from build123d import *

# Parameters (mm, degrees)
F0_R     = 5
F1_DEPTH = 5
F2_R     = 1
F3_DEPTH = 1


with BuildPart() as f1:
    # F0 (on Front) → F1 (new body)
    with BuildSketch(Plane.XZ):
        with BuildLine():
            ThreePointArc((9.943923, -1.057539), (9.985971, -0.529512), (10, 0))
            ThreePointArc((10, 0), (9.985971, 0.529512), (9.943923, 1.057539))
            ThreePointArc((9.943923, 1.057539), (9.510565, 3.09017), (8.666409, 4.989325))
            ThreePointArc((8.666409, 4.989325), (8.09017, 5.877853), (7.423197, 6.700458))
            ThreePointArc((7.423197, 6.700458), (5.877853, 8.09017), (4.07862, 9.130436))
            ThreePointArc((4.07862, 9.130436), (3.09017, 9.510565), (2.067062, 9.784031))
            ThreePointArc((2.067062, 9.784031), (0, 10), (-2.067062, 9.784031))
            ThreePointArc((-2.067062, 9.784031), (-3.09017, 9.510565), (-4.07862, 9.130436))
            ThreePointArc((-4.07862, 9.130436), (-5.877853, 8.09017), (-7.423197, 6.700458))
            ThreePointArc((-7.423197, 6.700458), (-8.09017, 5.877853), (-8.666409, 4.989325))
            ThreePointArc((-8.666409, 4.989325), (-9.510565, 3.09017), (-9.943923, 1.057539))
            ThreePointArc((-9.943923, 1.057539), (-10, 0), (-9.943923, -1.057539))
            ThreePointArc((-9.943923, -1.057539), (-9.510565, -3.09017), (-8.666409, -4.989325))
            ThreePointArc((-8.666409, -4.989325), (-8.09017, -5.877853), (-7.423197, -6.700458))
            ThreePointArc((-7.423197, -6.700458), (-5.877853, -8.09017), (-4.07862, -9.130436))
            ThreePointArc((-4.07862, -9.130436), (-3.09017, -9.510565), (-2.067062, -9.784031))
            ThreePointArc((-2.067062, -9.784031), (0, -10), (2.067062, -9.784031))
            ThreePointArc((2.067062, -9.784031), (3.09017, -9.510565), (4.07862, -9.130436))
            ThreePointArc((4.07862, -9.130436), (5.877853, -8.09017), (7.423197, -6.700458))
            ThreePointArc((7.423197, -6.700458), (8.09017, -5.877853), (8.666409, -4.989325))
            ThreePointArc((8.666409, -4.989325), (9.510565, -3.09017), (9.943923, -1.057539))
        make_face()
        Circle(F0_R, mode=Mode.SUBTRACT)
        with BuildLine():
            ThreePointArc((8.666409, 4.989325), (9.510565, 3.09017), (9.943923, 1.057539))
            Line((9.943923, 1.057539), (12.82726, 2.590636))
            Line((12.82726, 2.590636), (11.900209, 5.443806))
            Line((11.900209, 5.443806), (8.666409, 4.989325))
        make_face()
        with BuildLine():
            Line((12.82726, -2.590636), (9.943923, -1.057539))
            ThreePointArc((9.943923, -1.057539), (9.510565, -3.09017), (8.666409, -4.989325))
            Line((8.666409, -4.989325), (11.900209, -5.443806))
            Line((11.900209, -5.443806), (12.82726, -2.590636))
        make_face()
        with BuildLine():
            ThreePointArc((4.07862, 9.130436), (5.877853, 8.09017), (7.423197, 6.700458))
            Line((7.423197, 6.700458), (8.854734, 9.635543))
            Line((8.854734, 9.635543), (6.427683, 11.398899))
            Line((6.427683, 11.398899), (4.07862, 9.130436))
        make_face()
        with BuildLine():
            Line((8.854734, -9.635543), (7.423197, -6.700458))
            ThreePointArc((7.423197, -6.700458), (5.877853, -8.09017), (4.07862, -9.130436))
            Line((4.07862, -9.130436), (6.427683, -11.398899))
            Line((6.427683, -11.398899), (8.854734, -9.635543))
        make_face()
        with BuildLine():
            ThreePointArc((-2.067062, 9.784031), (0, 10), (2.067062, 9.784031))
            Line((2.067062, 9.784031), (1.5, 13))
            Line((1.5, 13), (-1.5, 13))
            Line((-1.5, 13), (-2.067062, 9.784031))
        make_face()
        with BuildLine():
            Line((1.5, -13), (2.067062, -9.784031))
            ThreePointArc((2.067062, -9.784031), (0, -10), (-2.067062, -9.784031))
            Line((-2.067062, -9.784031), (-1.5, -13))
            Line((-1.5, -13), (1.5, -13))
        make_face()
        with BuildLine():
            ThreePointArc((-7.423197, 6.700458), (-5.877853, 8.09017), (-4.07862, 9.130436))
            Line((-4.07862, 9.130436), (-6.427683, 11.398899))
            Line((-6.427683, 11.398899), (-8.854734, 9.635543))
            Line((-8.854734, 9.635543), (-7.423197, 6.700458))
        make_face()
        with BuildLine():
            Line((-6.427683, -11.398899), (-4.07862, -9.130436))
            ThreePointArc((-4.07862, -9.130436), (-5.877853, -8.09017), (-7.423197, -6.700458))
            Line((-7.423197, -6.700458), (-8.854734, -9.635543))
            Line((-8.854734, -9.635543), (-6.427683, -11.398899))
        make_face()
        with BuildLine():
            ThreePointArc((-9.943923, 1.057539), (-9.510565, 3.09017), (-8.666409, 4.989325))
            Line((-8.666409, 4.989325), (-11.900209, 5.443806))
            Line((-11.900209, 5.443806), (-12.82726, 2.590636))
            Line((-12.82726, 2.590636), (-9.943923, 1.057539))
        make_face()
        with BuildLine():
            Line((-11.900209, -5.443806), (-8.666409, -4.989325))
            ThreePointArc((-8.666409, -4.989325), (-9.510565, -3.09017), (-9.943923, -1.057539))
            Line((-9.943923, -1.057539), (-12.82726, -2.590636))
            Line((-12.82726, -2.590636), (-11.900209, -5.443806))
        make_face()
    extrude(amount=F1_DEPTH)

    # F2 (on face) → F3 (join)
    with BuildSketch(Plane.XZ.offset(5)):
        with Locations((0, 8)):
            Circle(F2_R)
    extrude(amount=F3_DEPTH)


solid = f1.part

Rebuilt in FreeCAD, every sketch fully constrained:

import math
import FreeCAD as App
import Part
import Sketcher
Q = App.Units.Quantity

doc = App.newDocument("Part")
body = doc.addObject("PartDesign::Body", "Body")

# Sketch on XZ plane
sketch1 = body.newObject("Sketcher::SketchObject", "Sketch")
sketch1.AttachmentSupport = (doc.getObject("XZ_Plane"), [""])
sketch1.MapMode = "FlatFace"
sketch1.addGeometry(Part.ArcOfCircle(Part.Circle(App.Vector(0.00011, -0.000003, 0), App.Vector(0, 0, 1), 9.99989), math.radians(-6.070655), math.radians(0.000015)), False)
sketch1.addGeometry(Part.ArcOfCircle(Part.Circle(App.Vector(0.00011, 0.000003, 0), App.Vector(0, 0, 1), 9.99989), math.radians(-0.000015), math.radians(6.070655)), False)
sketch1.addGeometry(Part.LineSegment(App.Vector(9.943923, 1.057539, 0), App.Vector(12.82726, 2.590636, 0)), False)
sketch1.addGeometry(Part.LineSegment(App.Vector(12.82726, 2.590636, 0), App.Vector(11.900209, 5.443806, 0)), False)
sketch1.addGeometry(Part.LineSegment(App.Vector(11.900209, 5.443806, 0), App.Vector(8.666409, 4.989325, 0)), False)
sketch1.addGeometry(Part.ArcOfCircle(Part.Circle(App.Vector(0.000049, 0.000031, 0), App.Vector(0, 0, 1), 9.999942), math.radians(29.929387), math.radians(42.070661)), False)
sketch1.addGeometry(Part.LineSegment(App.Vector(7.423197, 6.700458, 0), App.Vector(8.854734, 9.635543, 0)), False)
sketch1.addGeometry(Part.LineSegment(App.Vector(8.854734, 9.635543, 0), App.Vector(6.427683, 11.398899, 0)), False)
sketch1.addGeometry(Part.LineSegment(App.Vector(6.427683, 11.398899, 0), App.Vector(4.07862, 9.130436, 0)), False)
sketch1.addGeometry(Part.ArcOfCircle(Part.Circle(App.Vector(-0.000023, -0.000068, 0), App.Vector(0, 0, 1), 10.000072), math.radians(65.929437), math.radians(78.070553)), False)
sketch1.addGeometry(Part.LineSegment(App.Vector(2.067062, 9.784031, 0), App.Vector(1.5, 13, 0)), False)
sketch1.addGeometry(Part.LineSegment(App.Vector(1.5, 13, 0), App.Vector(-1.5, 13, 0)), False)
sketch1.addGeometry(Part.LineSegment(App.Vector(-1.5, 13, 0), App.Vector(-2.067062, 9.784031, 0)), False)
sketch1.addGeometry(Part.ArcOfCircle(Part.Circle(App.Vector(0.000023, -0.000068, 0), App.Vector(0, 0, 1), 10.000072), math.radians(101.929447), math.radians(114.070563)), False)
sketch1.addGeometry(Part.LineSegment(App.Vector(-4.07862, 9.130436, 0), App.Vector(-6.427683, 11.398899, 0)), False)
sketch1.addGeometry(Part.LineSegment(App.Vector(-6.427683, 11.398899, 0), App.Vector(-8.854734, 9.635543, 0)), False)
sketch1.addGeometry(Part.LineSegment(App.Vector(-8.854734, 9.635543, 0), App.Vector(-7.423197, 6.700458, 0)), False)
sketch1.addGeometry(Part.ArcOfCircle(Part.Circle(App.Vector(-0.000049, 0.000031, 0), App.Vector(0, 0, 1), 9.999942), math.radians(137.929339), math.radians(150.070613)), False)
sketch1.addGeometry(Part.LineSegment(App.Vector(-8.666409, 4.989325, 0), App.Vector(-11.900209, 5.443806, 0)), False)
sketch1.addGeometry(Part.LineSegment(App.Vector(-11.900209, 5.443806, 0), App.Vector(-12.82726, 2.590636, 0)), False)
sketch1.addGeometry(Part.LineSegment(App.Vector(-12.82726, 2.590636, 0), App.Vector(-9.943923, 1.057539, 0)), False)
sketch1.addGeometry(Part.ArcOfCircle(Part.Circle(App.Vector(-0.000059, 0, 0), App.Vector(0, 0, 1), 9.999941), math.radians(173.92936), math.radians(186.07064)), False)
sketch1.addGeometry(Part.LineSegment(App.Vector(-9.943923, -1.057539, 0), App.Vector(-12.82726, -2.590636, 0)), False)
sketch1.addGeometry(Part.LineSegment(App.Vector(-12.82726, -2.590636, 0), App.Vector(-11.900209, -5.443806, 0)), False)
sketch1.addGeometry(Part.LineSegment(App.Vector(-11.900209, -5.443806, 0), App.Vector(-8.666409, -4.989325, 0)), False)
sketch1.addGeometry(Part.ArcOfCircle(Part.Circle(App.Vector(-0.000049, -0.000031, 0), App.Vector(0, 0, 1), 9.999942), math.radians(-150.070613), math.radians(-137.929339)), False)
sketch1.addGeometry(Part.LineSegment(App.Vector(-7.423197, -6.700458, 0), App.Vector(-8.854734, -9.635543, 0)), False)
sketch1.addGeometry(Part.LineSegment(App.Vector(-8.854734, -9.635543, 0), App.Vector(-6.427683, -11.398899, 0)), False)
sketch1.addGeometry(Part.LineSegment(App.Vector(-6.427683, -11.398899, 0), App.Vector(-4.07862, -9.130436, 0)), False)
sketch1.addGeometry(Part.ArcOfCircle(Part.Circle(App.Vector(0.000023, 0.000068, 0), App.Vector(0, 0, 1), 10.000072), math.radians(-114.070563), math.radians(-101.929447)), False)
sketch1.addGeometry(Part.LineSegment(App.Vector(-2.067062, -9.784031, 0), App.Vector(-1.5, -13, 0)), False)
sketch1.addGeometry(Part.LineSegment(App.Vector(-1.5, -13, 0), App.Vector(1.5, -13, 0)), False)
sketch1.addGeometry(Part.LineSegment(App.Vector(1.5, -13, 0), App.Vector(2.067062, -9.784031, 0)), False)
sketch1.addGeometry(Part.ArcOfCircle(Part.Circle(App.Vector(-0.000023, 0.000068, 0), App.Vector(0, 0, 1), 10.000072), math.radians(-78.070553), math.radians(-65.929437)), False)
sketch1.addGeometry(Part.LineSegment(App.Vector(4.07862, -9.130436, 0), App.Vector(6.427683, -11.398899, 0)), False)
sketch1.addGeometry(Part.LineSegment(App.Vector(6.427683, -11.398899, 0), App.Vector(8.854734, -9.635543, 0)), False)
sketch1.addGeometry(Part.LineSegment(App.Vector(8.854734, -9.635543, 0), App.Vector(7.423197, -6.700458, 0)), False)
sketch1.addGeometry(Part.ArcOfCircle(Part.Circle(App.Vector(0.000049, -0.000031, 0), App.Vector(0, 0, 1), 9.999942), math.radians(-42.070661), math.radians(-29.929387)), False)
sketch1.addGeometry(Part.LineSegment(App.Vector(8.666409, -4.989325, 0), App.Vector(11.900209, -5.443806, 0)), False)
sketch1.addGeometry(Part.LineSegment(App.Vector(11.900209, -5.443806, 0), App.Vector(12.82726, -2.590636, 0)), False)
sketch1.addGeometry(Part.LineSegment(App.Vector(12.82726, -2.590636, 0), App.Vector(9.943923, -1.057539, 0)), False)
sketch1.addGeometry(Part.Circle(App.Vector(0, 0, 0), App.Vector(0, 0, 1), 5), False)
sketch1.addConstraint(Sketcher.Constraint("Tangent", 0, 2, 1, 1))
sketch1.addConstraint(Sketcher.Constraint("Coincident", 1, 2, 2, 1))
sketch1.addConstraint(Sketcher.Constraint("Coincident", 2, 2, 3, 1))
sketch1.addConstraint(Sketcher.Constraint("Coincident", 3, 2, 4, 1))
sketch1.addConstraint(Sketcher.Constraint("Coincident", 4, 2, 5, 1))
sketch1.addConstraint(Sketcher.Constraint("Coincident", 5, 2, 6, 1))
sketch1.addConstraint(Sketcher.Constraint("Coincident", 6, 2, 7, 1))
sketch1.addConstraint(Sketcher.Constraint("Coincident", 7, 2, 8, 1))
sketch1.addConstraint(Sketcher.Constraint("Coincident", 8, 2, 9, 1))
sketch1.addConstraint(Sketcher.Constraint("Coincident", 9, 2, 10, 1))
sketch1.addConstraint(Sketcher.Constraint("Coincident", 10, 2, 11, 1))
sketch1.addConstraint(Sketcher.Constraint("Coincident", 11, 2, 12, 1))
sketch1.addConstraint(Sketcher.Constraint("Coincident", 12, 2, 13, 1))
sketch1.addConstraint(Sketcher.Constraint("Coincident", 13, 2, 14, 1))
sketch1.addConstraint(Sketcher.Constraint("Coincident", 14, 2, 15, 1))
sketch1.addConstraint(Sketcher.Constraint("Coincident", 15, 2, 16, 1))
sketch1.addConstraint(Sketcher.Constraint("Coincident", 16, 2, 17, 1))
sketch1.addConstraint(Sketcher.Constraint("Coincident", 17, 2, 18, 1))
sketch1.addConstraint(Sketcher.Constraint("Coincident", 18, 2, 19, 1))
sketch1.addConstraint(Sketcher.Constraint("Coincident", 19, 2, 20, 1))
sketch1.addConstraint(Sketcher.Constraint("Coincident", 20, 2, 21, 1))
sketch1.addConstraint(Sketcher.Constraint("Coincident", 21, 2, 22, 1))
sketch1.addConstraint(Sketcher.Constraint("Coincident", 22, 2, 23, 1))
sketch1.addConstraint(Sketcher.Constraint("Coincident", 23, 2, 24, 1))
sketch1.addConstraint(Sketcher.Constraint("Coincident", 24, 2, 25, 1))
sketch1.addConstraint(Sketcher.Constraint("Coincident", 25, 2, 26, 1))
sketch1.addConstraint(Sketcher.Constraint("Coincident", 26, 2, 27, 1))
sketch1.addConstraint(Sketcher.Constraint("Coincident", 27, 2, 28, 1))
sketch1.addConstraint(Sketcher.Constraint("Coincident", 28, 2, 29, 1))
sketch1.addConstraint(Sketcher.Constraint("Coincident", 29, 2, 30, 1))
sketch1.addConstraint(Sketcher.Constraint("Coincident", 30, 2, 31, 1))
sketch1.addConstraint(Sketcher.Constraint("Coincident", 31, 2, 32, 1))
sketch1.addConstraint(Sketcher.Constraint("Coincident", 32, 2, 33, 1))
sketch1.addConstraint(Sketcher.Constraint("Coincident", 33, 2, 34, 1))
sketch1.addConstraint(Sketcher.Constraint("Coincident", 34, 2, 35, 1))
sketch1.addConstraint(Sketcher.Constraint("Coincident", 35, 2, 36, 1))
sketch1.addConstraint(Sketcher.Constraint("Coincident", 36, 2, 37, 1))
sketch1.addConstraint(Sketcher.Constraint("Coincident", 37, 2, 38, 1))
sketch1.addConstraint(Sketcher.Constraint("Coincident", 38, 2, 39, 1))
sketch1.addConstraint(Sketcher.Constraint("Coincident", 39, 2, 40, 1))
sketch1.addConstraint(Sketcher.Constraint("Coincident", 40, 2, 0, 1))
sketch1.addConstraint(Sketcher.Constraint("Horizontal", 11))
sketch1.addConstraint(Sketcher.Constraint("Horizontal", 31))
sketch1.addConstraint(Sketcher.Constraint("Coincident", 41, 3, -1, 1))
sketch1.addConstraint(Sketcher.Constraint("Equal", 0, 1))
sketch1.addConstraint(Sketcher.Constraint("Equal", 9, 13))
sketch1.addConstraint(Sketcher.Constraint("Equal", 5, 17))
sketch1.addConstraint(Sketcher.Constraint("Equal", 17, 21))
sketch1.addConstraint(Sketcher.Constraint("Equal", 21, 25))
sketch1.addConstraint(Sketcher.Constraint("Equal", 13, 29))
sketch1.addConstraint(Sketcher.Constraint("Equal", 29, 33))
sketch1.addConstraint(Sketcher.Constraint("Equal", 25, 37))
sketch1.addConstraint(Sketcher.Constraint("Symmetric", 5, 3, 25, 3, -1, 1))
sketch1.addConstraint(Sketcher.Constraint("Symmetric", 9, 3, 29, 3, -1, 1))
sketch1.addConstraint(Sketcher.Constraint("Symmetric", 13, 3, 33, 3, -1, 1))
sketch1.addConstraint(Sketcher.Constraint("Symmetric", 17, 3, 37, 3, -1, 1))
sketch1.addConstraint(Sketcher.Constraint("Symmetric", 1, 2, 21, 2, -1, 1))
sketch1.addConstraint(Sketcher.Constraint("Symmetric", 2, 2, 22, 2, -1, 1))
sketch1.addConstraint(Sketcher.Constraint("Symmetric", 3, 2, 23, 2, -1, 1))
sketch1.addConstraint(Sketcher.Constraint("Symmetric", 6, 2, 26, 2, -1, 1))
sketch1.addConstraint(Sketcher.Constraint("Symmetric", 7, 2, 27, 2, -1, 1))
sketch1.addConstraint(Sketcher.Constraint("Symmetric", 10, 2, 30, 2, -1, 1))
sketch1.addConstraint(Sketcher.Constraint("Symmetric", 14, 2, 34, 2, -1, 1))
sketch1.addConstraint(Sketcher.Constraint("Symmetric", 15, 2, 35, 2, -1, 1))
sketch1.addConstraint(Sketcher.Constraint("Symmetric", 18, 2, 38, 2, -1, 1))
sketch1.addConstraint(Sketcher.Constraint("Symmetric", 19, 2, 39, 2, -1, 1))
sketch1.addConstraint(Sketcher.Constraint("Symmetric", 20, 2, 40, 2, -1, 1))
sketch1.addConstraint(Sketcher.Constraint("Symmetric", 9, 3, 13, 3, -2))
sketch1.addConstraint(Sketcher.Constraint("Symmetric", 5, 3, 17, 3, -2))
sketch1.addConstraint(Sketcher.Constraint("Symmetric", 7, 2, 14, 2, -2))
sketch1.addConstraint(Sketcher.Constraint("Symmetric", 6, 2, 15, 2, -2))
sketch1.addConstraint(Sketcher.Constraint("Symmetric", 3, 2, 18, 2, -2))
sketch1.addConstraint(Sketcher.Constraint("Symmetric", 2, 2, 19, 2, -2))
sketch1.addConstraint(Sketcher.Constraint("Symmetric", 1, 2, 20, 2, -2))
sketch1.addConstraint(Sketcher.Constraint("PointOnObject", 0, 2, -1))
sketch1.addConstraint(Sketcher.Constraint("Parallel", 4, 24))
sketch1.addConstraint(Sketcher.Constraint("Parallel", 6, 26))
sketch1.addConstraint(Sketcher.Constraint("Parallel", 8, 28))
sketch1.addConstraint(Sketcher.Constraint("Parallel", 10, 30))
sketch1.addConstraint(Sketcher.Constraint("Parallel", 12, 32))
sketch1.addConstraint(Sketcher.Constraint("Parallel", 14, 34))
sketch1.addConstraint(Sketcher.Constraint("Parallel", 16, 36))
sketch1.addConstraint(Sketcher.Constraint("Parallel", 18, 38))
sketch1.addConstraint(Sketcher.Constraint("Horizontal", 9, 2, 12, 2))
sketch1.addConstraint(Sketcher.Constraint("Horizontal", 8, 2, 13, 2))
sketch1.addConstraint(Sketcher.Constraint("Horizontal", 5, 2, 16, 2))
sketch1.addConstraint(Sketcher.Constraint("Horizontal", 4, 2, 17, 2))
sketch1.addConstraint(Sketcher.Constraint("Horizontal", 29, 2, 32, 2))
sketch1.addConstraint(Sketcher.Constraint("Vertical", 11, 2, 30, 2))
sketch1.addConstraint(Sketcher.Constraint("Equal", 2, 4))
sketch1.addConstraint(Sketcher.Constraint("Equal", 4, 6))
sketch1.addConstraint(Sketcher.Constraint("Equal", 3, 7))
sketch1.addConstraint(Sketcher.Constraint("Equal", 6, 8))
sketch1.addConstraint(Sketcher.Constraint("Equal", 8, 10))
sketch1.addConstraint(Sketcher.Constraint("Diameter", 41, 10.0))
sketch1.addConstraint(Sketcher.Constraint("DistanceX", 11, 2, 11, 1, 3.0))
sketch1.addConstraint(Sketcher.Constraint("Angle", 2, Q("27.999993 deg")))
sketch1.addConstraint(Sketcher.Constraint("Angle", 3, Q("107.999998 deg")))
sketch1.addConstraint(Sketcher.Constraint("Angle", 4, Q("-171.999999 deg")))
sketch1.addConstraint(Sketcher.Constraint("Angle", 6, Q("63.999994 deg")))
sketch1.addConstraint(Sketcher.Constraint("Angle", 7, Q("143.999996 deg")))
sketch1.addConstraint(Sketcher.Constraint("Angle", 8, Q("-136.00001 deg")))
sketch1.addConstraint(Sketcher.Constraint("Angle", 10, Q("99.999998 deg")))
sketch1.addConstraint(Sketcher.Constraint("Distance", 3, 3.0))
sketch1.addConstraint(Sketcher.Constraint("DistanceX", -1, 1, 0, 2, 10.0))
sketch1.addConstraint(Sketcher.Constraint("DistanceY", -1, 1, 10, 2, 13.0))
sketch1.addConstraint(Sketcher.Constraint("Radius", 0, 9.99989))
sketch1.addConstraint(Sketcher.Constraint("Radius", 9, 10.000072))
sketch1.addConstraint(Sketcher.Constraint("Radius", 21, 9.999941))
sketch1.addConstraint(Sketcher.Constraint("DistanceY", -1, 1, 7, 2, 11.398899))
sketch1.addConstraint(Sketcher.Constraint("DistanceX", 1, 3, 3, 2, 11.900099))
sketch1.addConstraint(Sketcher.Constraint("DistanceX", 4, 2, 3, 2, 3.2338))
sketch1.addConstraint(Sketcher.Constraint("DistanceX", -1, 1, 8, 2, 4.07862))
pad1 = body.newObject("PartDesign::Pad", "Pad")
pad1.Profile = sketch1
pad1.Length = 5

# Sketch on XZ plane
sketch2 = body.newObject("Sketcher::SketchObject", "Sketch001")
sketch2.AttachmentSupport = (doc.getObject("XZ_Plane"), [""])
sketch2.MapMode = "FlatFace"
sketch2.AttachmentOffset = App.Placement(App.Vector(0, 0, 5), App.Rotation())
sketch2.addGeometry(Part.Circle(App.Vector(0, 8, 0), App.Vector(0, 0, 1), 1), False)
sketch2.addConstraint(Sketcher.Constraint("PointOnObject", 0, 3, -2))
sketch2.addConstraint(Sketcher.Constraint("Diameter", 0, 2.0))
sketch2.addConstraint(Sketcher.Constraint("DistanceY", -1, 1, 0, 3, 8.0))
pad2 = body.newObject("PartDesign::Pad", "Pad001")
pad2.Profile = sketch2
pad2.Length = 1

doc.recompute()
